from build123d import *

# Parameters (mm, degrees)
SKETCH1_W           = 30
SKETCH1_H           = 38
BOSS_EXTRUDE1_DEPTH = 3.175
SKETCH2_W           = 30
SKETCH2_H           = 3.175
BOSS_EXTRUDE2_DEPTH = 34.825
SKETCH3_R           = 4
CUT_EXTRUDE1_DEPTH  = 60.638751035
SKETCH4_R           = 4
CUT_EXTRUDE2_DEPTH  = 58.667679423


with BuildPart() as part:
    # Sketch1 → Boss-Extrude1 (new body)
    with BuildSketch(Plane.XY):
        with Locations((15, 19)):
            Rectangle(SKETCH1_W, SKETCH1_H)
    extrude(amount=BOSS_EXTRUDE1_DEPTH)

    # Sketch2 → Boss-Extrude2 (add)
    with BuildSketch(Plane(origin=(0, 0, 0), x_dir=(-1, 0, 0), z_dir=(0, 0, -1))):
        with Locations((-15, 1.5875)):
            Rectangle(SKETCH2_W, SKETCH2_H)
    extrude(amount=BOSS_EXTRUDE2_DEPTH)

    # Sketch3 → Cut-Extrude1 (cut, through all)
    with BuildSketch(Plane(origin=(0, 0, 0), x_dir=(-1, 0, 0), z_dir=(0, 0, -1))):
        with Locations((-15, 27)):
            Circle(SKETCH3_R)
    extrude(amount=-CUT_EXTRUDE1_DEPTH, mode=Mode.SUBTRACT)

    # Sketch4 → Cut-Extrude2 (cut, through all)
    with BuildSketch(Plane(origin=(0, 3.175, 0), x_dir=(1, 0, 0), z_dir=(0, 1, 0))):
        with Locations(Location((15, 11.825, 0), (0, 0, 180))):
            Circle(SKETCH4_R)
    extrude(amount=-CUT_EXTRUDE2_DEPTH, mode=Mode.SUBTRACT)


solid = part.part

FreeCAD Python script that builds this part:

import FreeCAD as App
import Part
import Sketcher

V = App.Vector

doc = App.newDocument("Part")
body = doc.addObject("PartDesign::Body", "Body")

# Sketch on XY plane
sketch1 = body.newObject("Sketcher::SketchObject", "Sketch")
sketch1.AttachmentSupport = (doc.getObject("XY_Plane"), [""])
sketch1.MapMode = "FlatFace"
sketch1.addGeometry(Part.LineSegment(V(0, 38, 0), V(0, 0, 0)), False)
sketch1.addGeometry(Part.LineSegment(V(0, 0, 0), V(30, 0, 0)), False)
sketch1.addGeometry(Part.LineSegment(V(30, 0, 0), V(30, 38, 0)), False)
sketch1.addGeometry(Part.LineSegment(V(30, 38, 0), V(0, 38, 0)), False)
sketch1.addConstraint(Sketcher.Constraint("Coincident", 0, 2, 1, 1))
sketch1.addConstraint(Sketcher.Constraint("Coincident", 1, 2, 2, 1))
sketch1.addConstraint(Sketcher.Constraint("Coincident", 2, 2, 3, 1))
sketch1.addConstraint(Sketcher.Constraint("Coincident", 3, 2, 0, 1))
sketch1.addConstraint(Sketcher.Constraint("Vertical", 0))
sketch1.addConstraint(Sketcher.Constraint("Horizontal", 1))
sketch1.addConstraint(Sketcher.Constraint("Vertical", 2))
sketch1.addConstraint(Sketcher.Constraint("Horizontal", 3))
sketch1.addConstraint(Sketcher.Constraint("Coincident", 0, 2, -1, 1))
sketch1.addConstraint(Sketcher.Constraint("DistanceX", 1, 1, 1, 2, 30.0))
sketch1.addConstraint(Sketcher.Constraint("DistanceY", 0, 2, 0, 1, 38.0))
pad1 = body.newObject("PartDesign::Pad", "Pad")
pad1.Profile = sketch1
pad1.Length = 3.175

# Sketch on XY plane
sketch2 = body.newObject("Sketcher::SketchObject", "Sketch001")
sketch2.AttachmentSupport = (doc.getObject("XY_Plane"), [""])
sketch2.MapMode = "FlatFace"
sketch2.addGeometry(Part.LineSegment(V(30, 3.175, 0), V(30, 0, 0)), False)
sketch2.addGeometry(Part.LineSegment(V(30, 0, 0), V(0, 0, 0)), False)
sketch2.addGeometry(Part.LineSegment(V(0, 0, 0), V(0, 3.175, 0)), False)
sketch2.addGeometry(Part.LineSegment(V(0, 3.175, 0), V(30, 3.175, 0)), False)
sketch2.addConstraint(Sketcher.Constraint("Coincident", 0, 2, 1, 1))
sketch2.addConstraint(Sketcher.Constraint("Coincident", 1, 2, 2, 1))
sketch2.addConstraint(Sketcher.Constraint("Coincident", 2, 2, 3, 1))
sketch2.addConstraint(Sketcher.Constraint("Coincident", 3, 2, 0, 1))
sketch2.addConstraint(Sketcher.Constraint("Vertical", 0))
sketch2.addConstraint(Sketcher.Constraint("Horizontal", 1))
sketch2.addConstraint(Sketcher.Constraint("Vertical", 2))
sketch2.addConstraint(Sketcher.Constraint("Horizontal", 3))
sketch2.addConstraint(Sketcher.Constraint("Coincident", 1, 2, -1, 1))
sketch2.addConstraint(Sketcher.Constraint("DistanceX", 1, 2, 1, 1, 30.0))
sketch2.addConstraint(Sketcher.Constraint("DistanceY", 0, 2, 0, 1, 3.175))
pad2 = body.newObject("PartDesign::Pad", "Pad001")
pad2.Profile = sketch2
pad2.Length = 34.825
pad2.Reversed = True

# Sketch on XY plane
sketch3 = body.newObject("Sketcher::SketchObject", "Sketch002")
sketch3.AttachmentSupport = (doc.getObject("XY_Plane"), [""])
sketch3.MapMode = "FlatFace"
sketch3.addGeometry(Part.Circle(V(15, 27, 0), V(0, 0, 1), 4), False)
sketch3.addConstraint(Sketcher.Constraint("Diameter", 0, 8.0))
sketch3.addConstraint(Sketcher.Constraint("DistanceX", -1, 1, 0, 3, 15.0))
sketch3.addConstraint(Sketcher.Constraint("DistanceY", -1, 1, 0, 3, 27.0))
pocket1 = body.newObject("PartDesign::Pocket", "Pocket")
pocket1.Profile = sketch3
pocket1.Type = "ThroughAll"
pocket1.Reversed = True

# Sketch on XZ plane
sketch4 = body.newObject("Sketcher::SketchObject", "Sketch003")
sketch4.AttachmentSupport = (doc.getObject("XZ_Plane"), [""])
sketch4.MapMode = "FlatFace"
sketch4.AttachmentOffset = App.Placement(V(0, 0, -3.175), App.Rotation())
sketch4.addGeometry(Part.Circle(V(15, -11.825, 0), V(0, 0, 1), 4), False)
sketch4.addConstraint(Sketcher.Constraint("Diameter", 0, 8.0))
sketch4.addConstraint(Sketcher.Constraint("DistanceX", -1, 1, 0, 3, 15.0))
sketch4.addConstraint(Sketcher.Constraint("DistanceY", 0, 3, -1, 1, 11.825))
pocket2 = body.newObject("PartDesign::Pocket", "Pocket001")
pocket2.Profile = sketch4
pocket2.Type = "ThroughAll"
pocket2.Reversed = True

doc.recompute()
